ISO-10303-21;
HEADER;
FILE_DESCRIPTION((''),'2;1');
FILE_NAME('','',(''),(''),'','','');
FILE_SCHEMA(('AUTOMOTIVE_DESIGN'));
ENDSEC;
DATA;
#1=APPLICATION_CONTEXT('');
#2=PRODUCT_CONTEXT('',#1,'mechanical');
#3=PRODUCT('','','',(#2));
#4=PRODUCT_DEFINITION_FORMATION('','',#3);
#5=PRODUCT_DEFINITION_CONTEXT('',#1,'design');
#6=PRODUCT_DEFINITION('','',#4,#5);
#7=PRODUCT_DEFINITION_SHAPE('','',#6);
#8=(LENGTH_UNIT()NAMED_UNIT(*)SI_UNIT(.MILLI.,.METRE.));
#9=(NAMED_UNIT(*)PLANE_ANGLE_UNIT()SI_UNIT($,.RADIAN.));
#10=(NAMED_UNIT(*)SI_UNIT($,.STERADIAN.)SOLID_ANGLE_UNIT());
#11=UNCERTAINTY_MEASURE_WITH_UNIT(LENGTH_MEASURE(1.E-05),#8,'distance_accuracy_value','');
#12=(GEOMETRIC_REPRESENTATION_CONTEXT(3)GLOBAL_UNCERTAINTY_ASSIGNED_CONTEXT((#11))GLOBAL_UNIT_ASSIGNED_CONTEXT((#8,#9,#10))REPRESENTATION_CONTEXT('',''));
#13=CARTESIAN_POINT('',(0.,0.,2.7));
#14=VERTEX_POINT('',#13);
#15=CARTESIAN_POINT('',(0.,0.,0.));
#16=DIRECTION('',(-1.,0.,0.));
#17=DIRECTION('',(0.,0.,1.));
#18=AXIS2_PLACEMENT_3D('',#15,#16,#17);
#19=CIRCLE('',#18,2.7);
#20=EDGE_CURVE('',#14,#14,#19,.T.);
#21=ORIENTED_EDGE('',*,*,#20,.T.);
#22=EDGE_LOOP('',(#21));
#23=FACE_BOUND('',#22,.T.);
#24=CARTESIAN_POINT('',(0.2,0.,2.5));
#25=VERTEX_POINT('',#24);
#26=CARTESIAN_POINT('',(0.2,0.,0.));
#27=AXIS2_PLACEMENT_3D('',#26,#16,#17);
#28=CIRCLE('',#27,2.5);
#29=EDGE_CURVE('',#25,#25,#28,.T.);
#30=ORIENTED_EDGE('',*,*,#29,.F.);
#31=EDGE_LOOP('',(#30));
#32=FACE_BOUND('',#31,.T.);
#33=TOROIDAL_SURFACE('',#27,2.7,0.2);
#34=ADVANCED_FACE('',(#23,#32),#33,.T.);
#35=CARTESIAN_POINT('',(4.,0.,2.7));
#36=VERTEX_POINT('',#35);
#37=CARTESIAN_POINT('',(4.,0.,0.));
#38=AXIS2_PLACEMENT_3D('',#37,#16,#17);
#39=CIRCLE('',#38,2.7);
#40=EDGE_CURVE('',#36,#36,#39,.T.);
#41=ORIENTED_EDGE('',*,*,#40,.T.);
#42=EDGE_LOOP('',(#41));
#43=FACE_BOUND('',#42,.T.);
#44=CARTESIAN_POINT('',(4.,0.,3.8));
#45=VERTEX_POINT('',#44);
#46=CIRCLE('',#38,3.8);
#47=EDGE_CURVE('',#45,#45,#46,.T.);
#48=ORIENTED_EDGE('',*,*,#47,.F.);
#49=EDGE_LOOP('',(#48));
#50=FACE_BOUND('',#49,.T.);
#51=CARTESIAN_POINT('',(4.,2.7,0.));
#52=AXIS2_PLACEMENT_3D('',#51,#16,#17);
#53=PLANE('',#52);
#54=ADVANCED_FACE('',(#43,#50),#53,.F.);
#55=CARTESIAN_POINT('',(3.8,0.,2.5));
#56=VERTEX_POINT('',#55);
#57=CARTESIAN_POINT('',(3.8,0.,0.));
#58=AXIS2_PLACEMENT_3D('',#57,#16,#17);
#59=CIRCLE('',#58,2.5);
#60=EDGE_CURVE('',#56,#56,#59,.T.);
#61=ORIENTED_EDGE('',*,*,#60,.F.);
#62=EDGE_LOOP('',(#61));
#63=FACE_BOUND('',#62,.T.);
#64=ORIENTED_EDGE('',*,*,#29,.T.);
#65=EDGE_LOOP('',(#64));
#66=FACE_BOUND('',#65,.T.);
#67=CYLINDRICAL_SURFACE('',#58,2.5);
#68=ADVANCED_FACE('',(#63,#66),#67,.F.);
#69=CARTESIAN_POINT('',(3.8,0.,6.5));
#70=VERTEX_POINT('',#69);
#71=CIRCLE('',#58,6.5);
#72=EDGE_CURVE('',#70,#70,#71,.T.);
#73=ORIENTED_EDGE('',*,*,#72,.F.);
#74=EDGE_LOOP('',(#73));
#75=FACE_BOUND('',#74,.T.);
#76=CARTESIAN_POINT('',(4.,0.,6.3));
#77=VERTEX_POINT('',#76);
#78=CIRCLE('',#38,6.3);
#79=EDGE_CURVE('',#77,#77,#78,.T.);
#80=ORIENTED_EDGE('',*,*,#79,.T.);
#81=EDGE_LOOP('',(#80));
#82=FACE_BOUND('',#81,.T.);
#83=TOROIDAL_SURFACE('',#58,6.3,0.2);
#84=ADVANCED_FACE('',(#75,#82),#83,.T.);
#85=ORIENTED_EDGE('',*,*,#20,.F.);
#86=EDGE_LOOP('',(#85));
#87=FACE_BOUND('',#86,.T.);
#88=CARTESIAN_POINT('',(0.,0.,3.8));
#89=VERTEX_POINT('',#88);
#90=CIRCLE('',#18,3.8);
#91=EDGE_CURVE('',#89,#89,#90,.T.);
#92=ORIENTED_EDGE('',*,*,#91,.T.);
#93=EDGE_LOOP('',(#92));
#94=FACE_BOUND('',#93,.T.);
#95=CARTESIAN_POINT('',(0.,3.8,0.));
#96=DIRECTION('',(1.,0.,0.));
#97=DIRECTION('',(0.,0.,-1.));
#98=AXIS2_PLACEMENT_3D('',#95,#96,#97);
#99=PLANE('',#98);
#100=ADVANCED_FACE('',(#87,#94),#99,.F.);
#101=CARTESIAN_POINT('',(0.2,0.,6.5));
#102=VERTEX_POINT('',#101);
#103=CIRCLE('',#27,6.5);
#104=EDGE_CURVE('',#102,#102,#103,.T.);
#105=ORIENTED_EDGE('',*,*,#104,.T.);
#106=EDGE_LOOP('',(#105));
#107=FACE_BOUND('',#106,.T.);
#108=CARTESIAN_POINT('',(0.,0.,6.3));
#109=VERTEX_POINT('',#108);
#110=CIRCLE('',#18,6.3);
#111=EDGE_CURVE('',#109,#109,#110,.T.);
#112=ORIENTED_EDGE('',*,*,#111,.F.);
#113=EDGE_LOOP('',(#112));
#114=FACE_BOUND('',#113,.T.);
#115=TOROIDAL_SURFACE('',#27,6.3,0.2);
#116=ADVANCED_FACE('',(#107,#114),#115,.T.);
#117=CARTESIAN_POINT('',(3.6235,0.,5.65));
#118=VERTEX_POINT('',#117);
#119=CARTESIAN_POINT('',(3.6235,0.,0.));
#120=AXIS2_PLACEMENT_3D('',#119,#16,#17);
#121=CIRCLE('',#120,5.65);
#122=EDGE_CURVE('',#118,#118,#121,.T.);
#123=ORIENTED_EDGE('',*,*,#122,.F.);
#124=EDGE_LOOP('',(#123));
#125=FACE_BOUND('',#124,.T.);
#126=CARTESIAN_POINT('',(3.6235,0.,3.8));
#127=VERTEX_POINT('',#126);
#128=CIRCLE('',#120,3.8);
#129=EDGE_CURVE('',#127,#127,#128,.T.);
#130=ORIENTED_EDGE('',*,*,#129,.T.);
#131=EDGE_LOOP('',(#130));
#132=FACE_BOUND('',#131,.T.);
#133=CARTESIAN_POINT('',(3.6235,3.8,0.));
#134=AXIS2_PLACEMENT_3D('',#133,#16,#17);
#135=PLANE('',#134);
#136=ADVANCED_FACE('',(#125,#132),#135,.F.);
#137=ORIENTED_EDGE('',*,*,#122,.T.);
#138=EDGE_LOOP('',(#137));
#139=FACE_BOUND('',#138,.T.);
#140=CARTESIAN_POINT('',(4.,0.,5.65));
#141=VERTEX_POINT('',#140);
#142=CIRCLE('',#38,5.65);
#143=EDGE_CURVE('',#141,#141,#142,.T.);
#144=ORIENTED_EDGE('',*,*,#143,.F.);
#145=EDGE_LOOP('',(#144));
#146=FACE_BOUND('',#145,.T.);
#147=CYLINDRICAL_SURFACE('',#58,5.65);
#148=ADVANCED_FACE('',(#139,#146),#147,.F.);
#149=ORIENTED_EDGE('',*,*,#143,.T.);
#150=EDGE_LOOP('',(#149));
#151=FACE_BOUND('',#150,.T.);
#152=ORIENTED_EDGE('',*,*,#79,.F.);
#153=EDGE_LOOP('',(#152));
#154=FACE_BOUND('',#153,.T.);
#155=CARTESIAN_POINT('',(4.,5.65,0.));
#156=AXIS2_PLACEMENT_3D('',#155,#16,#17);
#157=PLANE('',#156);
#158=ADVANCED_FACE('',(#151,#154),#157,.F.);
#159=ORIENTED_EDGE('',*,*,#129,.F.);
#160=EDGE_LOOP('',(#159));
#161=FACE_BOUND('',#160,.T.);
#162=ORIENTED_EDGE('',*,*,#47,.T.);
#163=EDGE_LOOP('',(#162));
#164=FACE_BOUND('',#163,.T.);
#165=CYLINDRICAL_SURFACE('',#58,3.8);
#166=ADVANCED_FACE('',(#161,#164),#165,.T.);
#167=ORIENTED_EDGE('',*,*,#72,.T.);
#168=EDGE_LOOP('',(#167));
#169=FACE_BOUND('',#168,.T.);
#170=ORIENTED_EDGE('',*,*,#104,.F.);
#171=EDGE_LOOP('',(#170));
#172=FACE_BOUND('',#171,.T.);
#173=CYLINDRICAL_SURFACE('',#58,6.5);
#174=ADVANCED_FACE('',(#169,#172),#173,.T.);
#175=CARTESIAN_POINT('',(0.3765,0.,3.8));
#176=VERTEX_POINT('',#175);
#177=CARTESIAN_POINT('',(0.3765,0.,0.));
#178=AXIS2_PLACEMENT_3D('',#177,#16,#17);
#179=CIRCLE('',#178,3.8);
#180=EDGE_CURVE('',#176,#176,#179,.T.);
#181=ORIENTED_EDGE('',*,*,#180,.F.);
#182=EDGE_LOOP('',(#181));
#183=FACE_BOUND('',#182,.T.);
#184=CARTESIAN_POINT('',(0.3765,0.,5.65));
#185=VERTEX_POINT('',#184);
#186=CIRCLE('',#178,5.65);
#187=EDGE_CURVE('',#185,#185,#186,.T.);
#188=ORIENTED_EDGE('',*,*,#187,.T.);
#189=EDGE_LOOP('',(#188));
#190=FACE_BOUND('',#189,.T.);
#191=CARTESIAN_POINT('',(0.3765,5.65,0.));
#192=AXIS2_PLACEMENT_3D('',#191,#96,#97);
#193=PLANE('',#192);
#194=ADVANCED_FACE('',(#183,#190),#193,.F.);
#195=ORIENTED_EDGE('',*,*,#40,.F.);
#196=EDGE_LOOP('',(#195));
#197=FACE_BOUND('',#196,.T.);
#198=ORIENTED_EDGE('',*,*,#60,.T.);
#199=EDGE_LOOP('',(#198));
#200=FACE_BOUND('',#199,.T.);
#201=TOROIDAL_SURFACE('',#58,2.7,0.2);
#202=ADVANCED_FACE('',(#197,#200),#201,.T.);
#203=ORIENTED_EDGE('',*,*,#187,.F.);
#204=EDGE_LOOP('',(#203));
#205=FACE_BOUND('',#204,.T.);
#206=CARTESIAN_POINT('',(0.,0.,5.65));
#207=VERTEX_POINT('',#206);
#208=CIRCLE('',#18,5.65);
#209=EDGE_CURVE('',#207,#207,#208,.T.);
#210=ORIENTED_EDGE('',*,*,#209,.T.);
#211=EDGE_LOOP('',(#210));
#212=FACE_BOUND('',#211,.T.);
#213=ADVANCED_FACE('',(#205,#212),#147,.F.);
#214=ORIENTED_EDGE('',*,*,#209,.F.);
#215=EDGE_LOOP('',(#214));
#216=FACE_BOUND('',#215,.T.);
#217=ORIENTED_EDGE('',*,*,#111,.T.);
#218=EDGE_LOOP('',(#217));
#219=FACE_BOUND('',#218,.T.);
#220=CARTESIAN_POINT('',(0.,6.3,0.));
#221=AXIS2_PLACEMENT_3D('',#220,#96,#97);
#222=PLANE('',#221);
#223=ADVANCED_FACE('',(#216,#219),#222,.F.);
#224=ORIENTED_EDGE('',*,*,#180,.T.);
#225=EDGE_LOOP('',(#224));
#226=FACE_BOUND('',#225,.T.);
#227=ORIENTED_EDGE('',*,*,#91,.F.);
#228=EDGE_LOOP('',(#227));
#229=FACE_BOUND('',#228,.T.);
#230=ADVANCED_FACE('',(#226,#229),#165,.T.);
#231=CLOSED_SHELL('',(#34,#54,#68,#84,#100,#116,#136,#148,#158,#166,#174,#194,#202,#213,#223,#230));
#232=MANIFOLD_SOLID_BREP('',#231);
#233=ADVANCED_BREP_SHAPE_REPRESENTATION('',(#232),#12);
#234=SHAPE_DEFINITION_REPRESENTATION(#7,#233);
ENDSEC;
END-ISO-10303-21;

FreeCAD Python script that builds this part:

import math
import FreeCAD as App
import Part
import Sketcher

V = App.Vector

doc = App.newDocument("Part")
params = doc.addObject("Spreadsheet::Sheet", "Params")
for row, (alias, value) in enumerate([
    ("sketch1_radius", "0.2 mm"),
    ("sketch1_width", "3.6 mm"),
    ("sketch1_height", "1.1 mm"),
    ("sketch1_height2", "0.65 mm"),
    ("sketch1_height3", "1.85 mm"),
    ("revolution_angle", "360 deg"),
], start=1):
    params.set(f"A{row}", alias)
    params.set(f"B{row}", "=" + value)
    params.setAlias(f"B{row}", alias)

body = doc.addObject("PartDesign::Body", "Body")

sketch1 = body.newObject("Sketcher::SketchObject", "Sketch")
sketch1.AttachmentSupport = (doc.getObject("XY_Plane"), [""])
sketch1.MapMode = "FlatFace"
sketch1.addGeometry(Part.LineSegment(V(0, 6.3, 0), V(0, 5.65, 0)), False)
sketch1.addGeometry(Part.LineSegment(V(0, 5.65, 0), V(0.38, 5.65, 0)), False)
sketch1.addGeometry(Part.LineSegment(V(0.38, 5.65, 0), V(0.38, 3.8, 0)), False)
sketch1.addGeometry(Part.LineSegment(V(0.38, 3.8, 0), V(0, 3.8, 0)), False)
sketch1.addGeometry(Part.LineSegment(V(0, 3.8, 0), V(0, 2.7, 0)), False)
sketch1.addGeometry(Part.ArcOfCircle(Part.Circle(V(0.2, 2.7, 0), V(0, 0, 1), 0.2), math.radians(-180), math.radians(-90)), False)
sketch1.addGeometry(Part.LineSegment(V(0.2, 2.5, 0), V(3.8, 2.5, 0)), False)
sketch1.addGeometry(Part.ArcOfCircle(Part.Circle(V(3.8, 2.7, 0), V(0, 0, 1), 0.2), math.radians(-90), math.radians(0)), False)
sketch1.addGeometry(Part.LineSegment(V(4, 2.7, 0), V(4, 3.8, 0)), False)
sketch1.addGeometry(Part.LineSegment(V(4, 3.8, 0), V(3.62, 3.8, 0)), False)
sketch1.addGeometry(Part.LineSegment(V(3.62, 3.8, 0), V(3.62, 5.65, 0)), False)
sketch1.addGeometry(Part.LineSegment(V(3.62, 5.65, 0), V(4, 5.65, 0)), False)
sketch1.addGeometry(Part.LineSegment(V(4, 5.65, 0), V(4, 6.3, 0)), False)
sketch1.addGeometry(Part.ArcOfCircle(Part.Circle(V(3.8, 6.3, 0), V(0, 0, 1), 0.2), math.radians(0), math.radians(90)), False)
sketch1.addGeometry(Part.LineSegment(V(3.8, 6.5, 0), V(0.2, 6.5, 0)), False)
sketch1.addGeometry(Part.ArcOfCircle(Part.Circle(V(0.2, 6.3, 0), V(0, 0, 1), 0.2), math.radians(90), math.radians(180)), False)
sketch1.addConstraint(Sketcher.Constraint("Coincident", 0, 2, 1, 1))
sketch1.addConstraint(Sketcher.Constraint("Coincident", 1, 2, 2, 1))
sketch1.addConstraint(Sketcher.Constraint("Coincident", 2, 2, 3, 1))
sketch1.addConstraint(Sketcher.Constraint("Coincident", 3, 2, 4, 1))
sketch1.addConstraint(Sketcher.Constraint("Tangent", 4, 2, 5, 1))
sketch1.addConstraint(Sketcher.Constraint("Tangent", 5, 2, 6, 1))
sketch1.addConstraint(Sketcher.Constraint("Tangent", 6, 2, 7, 1))
sketch1.addConstraint(Sketcher.Constraint("Tangent", 7, 2, 8, 1))
sketch1.addConstraint(Sketcher.Constraint("Coincident", 8, 2, 9, 1))
sketch1.addConstraint(Sketcher.Constraint("Coincident", 9, 2, 10, 1))
sketch1.addConstraint(Sketcher.Constraint("Coincident", 10, 2, 11, 1))
sketch1.addConstraint(Sketcher.Constraint("Coincident", 11, 2, 12, 1))
sketch1.addConstraint(Sketcher.Constraint("Tangent", 12, 2, 13, 1))
sketch1.addConstraint(Sketcher.Constraint("Tangent", 13, 2, 14, 1))
sketch1.addConstraint(Sketcher.Constraint("Tangent", 14, 2, 15, 1))
sketch1.addConstraint(Sketcher.Constraint("Tangent", 15, 2, 0, 1))
sketch1.addConstraint(Sketcher.Constraint("Vertical", 0))
sketch1.addConstraint(Sketcher.Constraint("Horizontal", 1))
sketch1.addConstraint(Sketcher.Constraint("Vertical", 2))
sketch1.addConstraint(Sketcher.Constraint("Horizontal", 3))
sketch1.addConstraint(Sketcher.Constraint("Vertical", 4))
sketch1.addConstraint(Sketcher.Constraint("Horizontal", 6))
sketch1.addConstraint(Sketcher.Constraint("Vertical", 8))
sketch1.addConstraint(Sketcher.Constraint("Horizontal", 9))
sketch1.addConstraint(Sketcher.Constraint("Vertical", 10))
sketch1.addConstraint(Sketcher.Constraint("Horizontal", 11))
sketch1.addConstraint(Sketcher.Constraint("Vertical", 12))
sketch1.addConstraint(Sketcher.Constraint("Horizontal", 14))
sketch1.addConstraint(Sketcher.Constraint("Equal", 5, 7))
sketch1.addConstraint(Sketcher.Constraint("Equal", 7, 13))
sketch1.addConstraint(Sketcher.Constraint("Equal", 13, 15))
sketch1.addConstraint(Sketcher.Constraint("PointOnObject", 0, 2, -2))
sketch1.addConstraint(Sketcher.Constraint("PointOnObject", 3, 2, -2))
sketch1.addConstraint(Sketcher.Constraint("Horizontal", 3, 2, 8, 2))
sketch1.addConstraint(Sketcher.Constraint("Horizontal", 1, 2, 10, 2))
sketch1.addConstraint(Sketcher.Constraint("Vertical", 7, 3, 13, 3))
sketch1.addConstraint(Sketcher.Constraint("Equal", 3, 9))
sketch1.addConstraint(Sketcher.Constraint("Radius", 5, 0.2))
sketch1.addConstraint(Sketcher.Constraint("DistanceX", 6, 1, 6, 2, 3.6))
sketch1.addConstraint(Sketcher.Constraint("DistanceY", 4, 2, 4, 1, 1.1))
sketch1.addConstraint(Sketcher.Constraint("DistanceY", 0, 2, 0, 1, 0.65))
sketch1.addConstraint(Sketcher.Constraint("DistanceY", 2, 2, 2, 1, 1.85))
sketch1.addConstraint(Sketcher.Constraint("DistanceY", -1, 1, 5, 3, 2.7))
sketch1.addConstraint(Sketcher.Constraint("DistanceX", 1, 1, 1, 2, 0.3765))
sketch1.setExpression("Constraints[37]", "Params.sketch1_radius")
sketch1.setExpression("Constraints[38]", "Params.sketch1_width")
sketch1.setExpression("Constraints[39]", "Params.sketch1_height")
sketch1.setExpression("Constraints[40]", "Params.sketch1_height2")
sketch1.setExpression("Constraints[41]", "Params.sketch1_height3")
revolution = body.newObject("PartDesign::Revolution", "Revolution")
revolution.Profile = sketch1
revolution.ReferenceAxis = (sketch1, ["H_Axis"])
revolution.setExpression("Angle", "Params.revolution_angle")

doc.recompute()
